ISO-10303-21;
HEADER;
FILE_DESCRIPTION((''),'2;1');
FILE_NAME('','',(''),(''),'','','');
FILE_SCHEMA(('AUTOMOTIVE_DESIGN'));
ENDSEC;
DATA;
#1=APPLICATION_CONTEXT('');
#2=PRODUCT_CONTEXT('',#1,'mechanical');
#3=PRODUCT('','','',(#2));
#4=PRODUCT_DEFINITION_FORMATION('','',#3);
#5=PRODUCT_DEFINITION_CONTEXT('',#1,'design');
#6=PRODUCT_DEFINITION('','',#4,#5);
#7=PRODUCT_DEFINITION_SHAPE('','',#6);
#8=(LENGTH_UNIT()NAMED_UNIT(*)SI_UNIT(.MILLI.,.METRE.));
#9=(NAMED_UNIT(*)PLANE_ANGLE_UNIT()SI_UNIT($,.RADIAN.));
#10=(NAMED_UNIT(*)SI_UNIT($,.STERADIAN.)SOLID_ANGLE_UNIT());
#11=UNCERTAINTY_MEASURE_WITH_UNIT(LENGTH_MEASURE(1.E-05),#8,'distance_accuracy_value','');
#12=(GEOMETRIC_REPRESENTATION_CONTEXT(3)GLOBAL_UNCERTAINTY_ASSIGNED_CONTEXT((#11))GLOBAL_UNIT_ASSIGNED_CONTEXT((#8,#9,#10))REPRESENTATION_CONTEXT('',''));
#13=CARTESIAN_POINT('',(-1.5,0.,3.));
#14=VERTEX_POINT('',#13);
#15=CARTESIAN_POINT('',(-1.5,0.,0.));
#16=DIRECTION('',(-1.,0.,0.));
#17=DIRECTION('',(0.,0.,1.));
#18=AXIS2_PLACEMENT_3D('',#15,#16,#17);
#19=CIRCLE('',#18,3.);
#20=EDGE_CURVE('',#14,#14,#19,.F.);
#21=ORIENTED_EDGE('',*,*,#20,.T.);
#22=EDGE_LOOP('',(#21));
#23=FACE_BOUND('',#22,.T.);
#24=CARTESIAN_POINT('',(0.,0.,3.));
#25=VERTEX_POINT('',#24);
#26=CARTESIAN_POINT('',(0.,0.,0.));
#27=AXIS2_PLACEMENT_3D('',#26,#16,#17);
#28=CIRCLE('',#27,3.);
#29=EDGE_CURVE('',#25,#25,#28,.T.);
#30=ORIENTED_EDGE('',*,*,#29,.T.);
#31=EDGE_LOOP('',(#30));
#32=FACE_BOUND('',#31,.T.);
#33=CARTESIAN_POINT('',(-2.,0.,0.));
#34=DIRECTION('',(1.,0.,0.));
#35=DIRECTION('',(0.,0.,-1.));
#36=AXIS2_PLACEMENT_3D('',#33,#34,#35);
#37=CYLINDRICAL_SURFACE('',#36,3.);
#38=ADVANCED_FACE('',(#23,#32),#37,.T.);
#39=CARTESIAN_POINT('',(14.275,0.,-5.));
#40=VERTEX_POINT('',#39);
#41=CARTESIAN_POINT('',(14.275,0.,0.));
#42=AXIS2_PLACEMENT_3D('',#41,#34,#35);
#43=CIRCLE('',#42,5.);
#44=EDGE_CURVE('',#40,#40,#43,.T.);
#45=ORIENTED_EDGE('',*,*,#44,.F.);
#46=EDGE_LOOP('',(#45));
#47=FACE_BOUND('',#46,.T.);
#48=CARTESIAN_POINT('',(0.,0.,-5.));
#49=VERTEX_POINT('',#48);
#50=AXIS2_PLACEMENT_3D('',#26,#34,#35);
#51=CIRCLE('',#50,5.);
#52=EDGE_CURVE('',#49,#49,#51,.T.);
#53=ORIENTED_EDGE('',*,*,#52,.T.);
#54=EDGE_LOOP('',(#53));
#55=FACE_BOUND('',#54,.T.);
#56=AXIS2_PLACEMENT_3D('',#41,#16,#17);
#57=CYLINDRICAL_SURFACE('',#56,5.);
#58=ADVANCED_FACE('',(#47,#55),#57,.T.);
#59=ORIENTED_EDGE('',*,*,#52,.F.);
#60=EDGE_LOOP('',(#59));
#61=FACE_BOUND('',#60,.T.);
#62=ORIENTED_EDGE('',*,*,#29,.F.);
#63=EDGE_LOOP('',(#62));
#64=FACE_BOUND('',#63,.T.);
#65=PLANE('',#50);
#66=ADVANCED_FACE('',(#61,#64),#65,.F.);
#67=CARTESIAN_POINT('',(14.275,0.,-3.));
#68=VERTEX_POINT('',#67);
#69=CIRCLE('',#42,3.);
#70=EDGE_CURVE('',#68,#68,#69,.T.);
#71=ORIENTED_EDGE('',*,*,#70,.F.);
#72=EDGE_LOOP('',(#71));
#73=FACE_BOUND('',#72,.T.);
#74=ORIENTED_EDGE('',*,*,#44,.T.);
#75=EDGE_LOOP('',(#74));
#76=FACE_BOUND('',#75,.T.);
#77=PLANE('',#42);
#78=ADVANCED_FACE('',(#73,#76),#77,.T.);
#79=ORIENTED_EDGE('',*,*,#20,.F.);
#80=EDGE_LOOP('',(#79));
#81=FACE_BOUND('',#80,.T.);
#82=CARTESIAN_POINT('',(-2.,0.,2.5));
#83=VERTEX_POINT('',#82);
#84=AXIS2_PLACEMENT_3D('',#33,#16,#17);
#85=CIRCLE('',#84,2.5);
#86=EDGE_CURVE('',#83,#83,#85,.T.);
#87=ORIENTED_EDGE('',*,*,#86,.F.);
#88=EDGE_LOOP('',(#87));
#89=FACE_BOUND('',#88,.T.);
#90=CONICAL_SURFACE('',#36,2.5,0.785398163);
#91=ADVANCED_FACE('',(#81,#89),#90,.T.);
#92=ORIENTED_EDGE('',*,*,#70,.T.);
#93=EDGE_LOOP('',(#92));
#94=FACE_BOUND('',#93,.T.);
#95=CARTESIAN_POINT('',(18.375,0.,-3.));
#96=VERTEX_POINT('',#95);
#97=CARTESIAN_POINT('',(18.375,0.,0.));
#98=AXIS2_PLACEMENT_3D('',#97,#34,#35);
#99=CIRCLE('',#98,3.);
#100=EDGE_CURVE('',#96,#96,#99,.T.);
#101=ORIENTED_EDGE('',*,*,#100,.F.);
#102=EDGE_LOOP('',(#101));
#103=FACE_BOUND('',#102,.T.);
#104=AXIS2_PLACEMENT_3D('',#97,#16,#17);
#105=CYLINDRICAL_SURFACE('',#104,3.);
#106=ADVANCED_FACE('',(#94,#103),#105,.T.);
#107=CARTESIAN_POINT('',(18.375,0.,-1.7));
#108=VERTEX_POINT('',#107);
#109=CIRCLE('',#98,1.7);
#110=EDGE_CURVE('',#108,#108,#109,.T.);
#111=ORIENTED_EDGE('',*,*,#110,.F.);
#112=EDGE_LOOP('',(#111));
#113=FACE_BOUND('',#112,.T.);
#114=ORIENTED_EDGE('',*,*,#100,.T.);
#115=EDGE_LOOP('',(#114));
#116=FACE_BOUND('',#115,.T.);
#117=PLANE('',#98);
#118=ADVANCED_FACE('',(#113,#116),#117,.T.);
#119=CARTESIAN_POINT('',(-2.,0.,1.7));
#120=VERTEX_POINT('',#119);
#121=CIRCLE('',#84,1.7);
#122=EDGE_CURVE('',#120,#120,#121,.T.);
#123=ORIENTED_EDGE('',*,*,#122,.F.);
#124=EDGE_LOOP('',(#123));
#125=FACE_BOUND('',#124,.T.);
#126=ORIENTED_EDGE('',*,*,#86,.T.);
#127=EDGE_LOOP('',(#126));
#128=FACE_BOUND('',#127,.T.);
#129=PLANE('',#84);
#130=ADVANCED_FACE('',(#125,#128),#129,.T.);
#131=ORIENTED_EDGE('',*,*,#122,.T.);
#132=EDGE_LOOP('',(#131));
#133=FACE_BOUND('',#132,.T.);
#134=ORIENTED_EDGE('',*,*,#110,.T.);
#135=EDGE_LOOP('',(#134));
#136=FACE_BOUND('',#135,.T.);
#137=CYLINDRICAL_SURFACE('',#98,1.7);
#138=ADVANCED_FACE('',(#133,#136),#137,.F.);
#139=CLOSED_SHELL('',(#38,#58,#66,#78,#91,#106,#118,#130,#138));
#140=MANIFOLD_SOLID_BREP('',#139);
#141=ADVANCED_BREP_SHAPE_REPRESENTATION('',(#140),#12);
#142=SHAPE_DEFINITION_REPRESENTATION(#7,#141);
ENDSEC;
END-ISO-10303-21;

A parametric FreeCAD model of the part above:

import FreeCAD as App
import Part
import Sketcher
from FreeCAD import Vector
Q = App.Units.Quantity


def edges_at(feature, points):
    """Names of the edges that pass closest to the given points."""
    edges = feature.Shape.Edges
    near = lambda p: min(range(len(edges)), key=lambda i: edges[i].distToShape(Part.Vertex(*p))[0])
    return sorted({f"Edge{near(p) + 1}" for p in points})

doc = App.newDocument("Part")
body = doc.addObject("PartDesign::Body", "Body")

# Sketch on YZ plane
sketch1 = body.newObject("Sketcher::SketchObject", "Sketch")
sketch1.AttachmentSupport = (doc.getObject("YZ_Plane"), [""])
sketch1.MapMode = "FlatFace"
sketch1.addGeometry(Part.Circle(Vector(0, 0, 0), Vector(0, 0, 1), 5), False)
sketch1.addConstraint([
    Sketcher.Constraint("Coincident", 0, 3, -1, 1),
    Sketcher.Constraint("Diameter", 0, Q("10 mm")),
])
pad1 = body.newObject("PartDesign::Pad", "Pad")
pad1.Profile = sketch1
pad1.Length = 14.275

# Sketch on YZ plane
sketch2 = body.newObject("Sketcher::SketchObject", "Sketch001")
sketch2.AttachmentSupport = (doc.getObject("YZ_Plane"), [""])
sketch2.MapMode = "FlatFace"
sketch2.addGeometry(Part.Circle(Vector(0, 0, 0), Vector(0, 0, 1), 3), False)
sketch2.addConstraint([
    Sketcher.Constraint("Coincident", 0, 3, -1, 1),
    Sketcher.Constraint("Diameter", 0, Q("6 mm")),
])
pad2 = body.newObject("PartDesign::Pad", "Pad001")
pad2.Profile = sketch2
pad2.Length = 2
pad2.Reversed = True
doc.recompute()

chamfer = body.newObject("PartDesign::Chamfer", "Chamfer")
chamfer.Base = (pad2, edges_at(pad2, [(-2, 0, -3)]))
chamfer.Size = 0.5

# Sketch on YZ plane
sketch3 = body.newObject("Sketcher::SketchObject", "Sketch002")
sketch3.AttachmentSupport = (doc.getObject("YZ_Plane"), [""])
sketch3.MapMode = "FlatFace"
sketch3.AttachmentOffset = App.Placement(Vector(0, 0, 18.375), App.Rotation())
sketch3.addGeometry(Part.Circle(Vector(0, 0, 0), Vector(0, 0, 1), 3), False)
sketch3.addConstraint([
    Sketcher.Constraint("Coincident", 0, 3, -1, 1),
    Sketcher.Constraint("Diameter", 0, Q("6 mm")),
])
pad3 = body.newObject("PartDesign::Pad", "Pad002")
pad3.Profile = sketch3
pad3.Length = 4.1
pad3.Reversed = True

# Sketch on YZ plane
sketch4 = body.newObject("Sketcher::SketchObject", "Sketch003")
sketch4.AttachmentSupport = (doc.getObject("YZ_Plane"), [""])
sketch4.MapMode = "FlatFace"
sketch4.AttachmentOffset = App.Placement(Vector(0, 0, 18.375), App.Rotation())
sketch4.addGeometry(Part.Circle(Vector(0, 0, 0), Vector(0, 0, 1), 1.7), False)
sketch4.addConstraint([
    Sketcher.Constraint("Coincident", 0, 3, -1, 1),
    Sketcher.Constraint("Diameter", 0, Q("3.4 mm")),
])
doc.recompute()
hole = body.newObject("PartDesign::Hole", "Hole")
hole.Profile = sketch4
hole.ThreadType = "None"
hole.Diameter = 3.4
hole.DepthType = "ThroughAll"

doc.recompute()
